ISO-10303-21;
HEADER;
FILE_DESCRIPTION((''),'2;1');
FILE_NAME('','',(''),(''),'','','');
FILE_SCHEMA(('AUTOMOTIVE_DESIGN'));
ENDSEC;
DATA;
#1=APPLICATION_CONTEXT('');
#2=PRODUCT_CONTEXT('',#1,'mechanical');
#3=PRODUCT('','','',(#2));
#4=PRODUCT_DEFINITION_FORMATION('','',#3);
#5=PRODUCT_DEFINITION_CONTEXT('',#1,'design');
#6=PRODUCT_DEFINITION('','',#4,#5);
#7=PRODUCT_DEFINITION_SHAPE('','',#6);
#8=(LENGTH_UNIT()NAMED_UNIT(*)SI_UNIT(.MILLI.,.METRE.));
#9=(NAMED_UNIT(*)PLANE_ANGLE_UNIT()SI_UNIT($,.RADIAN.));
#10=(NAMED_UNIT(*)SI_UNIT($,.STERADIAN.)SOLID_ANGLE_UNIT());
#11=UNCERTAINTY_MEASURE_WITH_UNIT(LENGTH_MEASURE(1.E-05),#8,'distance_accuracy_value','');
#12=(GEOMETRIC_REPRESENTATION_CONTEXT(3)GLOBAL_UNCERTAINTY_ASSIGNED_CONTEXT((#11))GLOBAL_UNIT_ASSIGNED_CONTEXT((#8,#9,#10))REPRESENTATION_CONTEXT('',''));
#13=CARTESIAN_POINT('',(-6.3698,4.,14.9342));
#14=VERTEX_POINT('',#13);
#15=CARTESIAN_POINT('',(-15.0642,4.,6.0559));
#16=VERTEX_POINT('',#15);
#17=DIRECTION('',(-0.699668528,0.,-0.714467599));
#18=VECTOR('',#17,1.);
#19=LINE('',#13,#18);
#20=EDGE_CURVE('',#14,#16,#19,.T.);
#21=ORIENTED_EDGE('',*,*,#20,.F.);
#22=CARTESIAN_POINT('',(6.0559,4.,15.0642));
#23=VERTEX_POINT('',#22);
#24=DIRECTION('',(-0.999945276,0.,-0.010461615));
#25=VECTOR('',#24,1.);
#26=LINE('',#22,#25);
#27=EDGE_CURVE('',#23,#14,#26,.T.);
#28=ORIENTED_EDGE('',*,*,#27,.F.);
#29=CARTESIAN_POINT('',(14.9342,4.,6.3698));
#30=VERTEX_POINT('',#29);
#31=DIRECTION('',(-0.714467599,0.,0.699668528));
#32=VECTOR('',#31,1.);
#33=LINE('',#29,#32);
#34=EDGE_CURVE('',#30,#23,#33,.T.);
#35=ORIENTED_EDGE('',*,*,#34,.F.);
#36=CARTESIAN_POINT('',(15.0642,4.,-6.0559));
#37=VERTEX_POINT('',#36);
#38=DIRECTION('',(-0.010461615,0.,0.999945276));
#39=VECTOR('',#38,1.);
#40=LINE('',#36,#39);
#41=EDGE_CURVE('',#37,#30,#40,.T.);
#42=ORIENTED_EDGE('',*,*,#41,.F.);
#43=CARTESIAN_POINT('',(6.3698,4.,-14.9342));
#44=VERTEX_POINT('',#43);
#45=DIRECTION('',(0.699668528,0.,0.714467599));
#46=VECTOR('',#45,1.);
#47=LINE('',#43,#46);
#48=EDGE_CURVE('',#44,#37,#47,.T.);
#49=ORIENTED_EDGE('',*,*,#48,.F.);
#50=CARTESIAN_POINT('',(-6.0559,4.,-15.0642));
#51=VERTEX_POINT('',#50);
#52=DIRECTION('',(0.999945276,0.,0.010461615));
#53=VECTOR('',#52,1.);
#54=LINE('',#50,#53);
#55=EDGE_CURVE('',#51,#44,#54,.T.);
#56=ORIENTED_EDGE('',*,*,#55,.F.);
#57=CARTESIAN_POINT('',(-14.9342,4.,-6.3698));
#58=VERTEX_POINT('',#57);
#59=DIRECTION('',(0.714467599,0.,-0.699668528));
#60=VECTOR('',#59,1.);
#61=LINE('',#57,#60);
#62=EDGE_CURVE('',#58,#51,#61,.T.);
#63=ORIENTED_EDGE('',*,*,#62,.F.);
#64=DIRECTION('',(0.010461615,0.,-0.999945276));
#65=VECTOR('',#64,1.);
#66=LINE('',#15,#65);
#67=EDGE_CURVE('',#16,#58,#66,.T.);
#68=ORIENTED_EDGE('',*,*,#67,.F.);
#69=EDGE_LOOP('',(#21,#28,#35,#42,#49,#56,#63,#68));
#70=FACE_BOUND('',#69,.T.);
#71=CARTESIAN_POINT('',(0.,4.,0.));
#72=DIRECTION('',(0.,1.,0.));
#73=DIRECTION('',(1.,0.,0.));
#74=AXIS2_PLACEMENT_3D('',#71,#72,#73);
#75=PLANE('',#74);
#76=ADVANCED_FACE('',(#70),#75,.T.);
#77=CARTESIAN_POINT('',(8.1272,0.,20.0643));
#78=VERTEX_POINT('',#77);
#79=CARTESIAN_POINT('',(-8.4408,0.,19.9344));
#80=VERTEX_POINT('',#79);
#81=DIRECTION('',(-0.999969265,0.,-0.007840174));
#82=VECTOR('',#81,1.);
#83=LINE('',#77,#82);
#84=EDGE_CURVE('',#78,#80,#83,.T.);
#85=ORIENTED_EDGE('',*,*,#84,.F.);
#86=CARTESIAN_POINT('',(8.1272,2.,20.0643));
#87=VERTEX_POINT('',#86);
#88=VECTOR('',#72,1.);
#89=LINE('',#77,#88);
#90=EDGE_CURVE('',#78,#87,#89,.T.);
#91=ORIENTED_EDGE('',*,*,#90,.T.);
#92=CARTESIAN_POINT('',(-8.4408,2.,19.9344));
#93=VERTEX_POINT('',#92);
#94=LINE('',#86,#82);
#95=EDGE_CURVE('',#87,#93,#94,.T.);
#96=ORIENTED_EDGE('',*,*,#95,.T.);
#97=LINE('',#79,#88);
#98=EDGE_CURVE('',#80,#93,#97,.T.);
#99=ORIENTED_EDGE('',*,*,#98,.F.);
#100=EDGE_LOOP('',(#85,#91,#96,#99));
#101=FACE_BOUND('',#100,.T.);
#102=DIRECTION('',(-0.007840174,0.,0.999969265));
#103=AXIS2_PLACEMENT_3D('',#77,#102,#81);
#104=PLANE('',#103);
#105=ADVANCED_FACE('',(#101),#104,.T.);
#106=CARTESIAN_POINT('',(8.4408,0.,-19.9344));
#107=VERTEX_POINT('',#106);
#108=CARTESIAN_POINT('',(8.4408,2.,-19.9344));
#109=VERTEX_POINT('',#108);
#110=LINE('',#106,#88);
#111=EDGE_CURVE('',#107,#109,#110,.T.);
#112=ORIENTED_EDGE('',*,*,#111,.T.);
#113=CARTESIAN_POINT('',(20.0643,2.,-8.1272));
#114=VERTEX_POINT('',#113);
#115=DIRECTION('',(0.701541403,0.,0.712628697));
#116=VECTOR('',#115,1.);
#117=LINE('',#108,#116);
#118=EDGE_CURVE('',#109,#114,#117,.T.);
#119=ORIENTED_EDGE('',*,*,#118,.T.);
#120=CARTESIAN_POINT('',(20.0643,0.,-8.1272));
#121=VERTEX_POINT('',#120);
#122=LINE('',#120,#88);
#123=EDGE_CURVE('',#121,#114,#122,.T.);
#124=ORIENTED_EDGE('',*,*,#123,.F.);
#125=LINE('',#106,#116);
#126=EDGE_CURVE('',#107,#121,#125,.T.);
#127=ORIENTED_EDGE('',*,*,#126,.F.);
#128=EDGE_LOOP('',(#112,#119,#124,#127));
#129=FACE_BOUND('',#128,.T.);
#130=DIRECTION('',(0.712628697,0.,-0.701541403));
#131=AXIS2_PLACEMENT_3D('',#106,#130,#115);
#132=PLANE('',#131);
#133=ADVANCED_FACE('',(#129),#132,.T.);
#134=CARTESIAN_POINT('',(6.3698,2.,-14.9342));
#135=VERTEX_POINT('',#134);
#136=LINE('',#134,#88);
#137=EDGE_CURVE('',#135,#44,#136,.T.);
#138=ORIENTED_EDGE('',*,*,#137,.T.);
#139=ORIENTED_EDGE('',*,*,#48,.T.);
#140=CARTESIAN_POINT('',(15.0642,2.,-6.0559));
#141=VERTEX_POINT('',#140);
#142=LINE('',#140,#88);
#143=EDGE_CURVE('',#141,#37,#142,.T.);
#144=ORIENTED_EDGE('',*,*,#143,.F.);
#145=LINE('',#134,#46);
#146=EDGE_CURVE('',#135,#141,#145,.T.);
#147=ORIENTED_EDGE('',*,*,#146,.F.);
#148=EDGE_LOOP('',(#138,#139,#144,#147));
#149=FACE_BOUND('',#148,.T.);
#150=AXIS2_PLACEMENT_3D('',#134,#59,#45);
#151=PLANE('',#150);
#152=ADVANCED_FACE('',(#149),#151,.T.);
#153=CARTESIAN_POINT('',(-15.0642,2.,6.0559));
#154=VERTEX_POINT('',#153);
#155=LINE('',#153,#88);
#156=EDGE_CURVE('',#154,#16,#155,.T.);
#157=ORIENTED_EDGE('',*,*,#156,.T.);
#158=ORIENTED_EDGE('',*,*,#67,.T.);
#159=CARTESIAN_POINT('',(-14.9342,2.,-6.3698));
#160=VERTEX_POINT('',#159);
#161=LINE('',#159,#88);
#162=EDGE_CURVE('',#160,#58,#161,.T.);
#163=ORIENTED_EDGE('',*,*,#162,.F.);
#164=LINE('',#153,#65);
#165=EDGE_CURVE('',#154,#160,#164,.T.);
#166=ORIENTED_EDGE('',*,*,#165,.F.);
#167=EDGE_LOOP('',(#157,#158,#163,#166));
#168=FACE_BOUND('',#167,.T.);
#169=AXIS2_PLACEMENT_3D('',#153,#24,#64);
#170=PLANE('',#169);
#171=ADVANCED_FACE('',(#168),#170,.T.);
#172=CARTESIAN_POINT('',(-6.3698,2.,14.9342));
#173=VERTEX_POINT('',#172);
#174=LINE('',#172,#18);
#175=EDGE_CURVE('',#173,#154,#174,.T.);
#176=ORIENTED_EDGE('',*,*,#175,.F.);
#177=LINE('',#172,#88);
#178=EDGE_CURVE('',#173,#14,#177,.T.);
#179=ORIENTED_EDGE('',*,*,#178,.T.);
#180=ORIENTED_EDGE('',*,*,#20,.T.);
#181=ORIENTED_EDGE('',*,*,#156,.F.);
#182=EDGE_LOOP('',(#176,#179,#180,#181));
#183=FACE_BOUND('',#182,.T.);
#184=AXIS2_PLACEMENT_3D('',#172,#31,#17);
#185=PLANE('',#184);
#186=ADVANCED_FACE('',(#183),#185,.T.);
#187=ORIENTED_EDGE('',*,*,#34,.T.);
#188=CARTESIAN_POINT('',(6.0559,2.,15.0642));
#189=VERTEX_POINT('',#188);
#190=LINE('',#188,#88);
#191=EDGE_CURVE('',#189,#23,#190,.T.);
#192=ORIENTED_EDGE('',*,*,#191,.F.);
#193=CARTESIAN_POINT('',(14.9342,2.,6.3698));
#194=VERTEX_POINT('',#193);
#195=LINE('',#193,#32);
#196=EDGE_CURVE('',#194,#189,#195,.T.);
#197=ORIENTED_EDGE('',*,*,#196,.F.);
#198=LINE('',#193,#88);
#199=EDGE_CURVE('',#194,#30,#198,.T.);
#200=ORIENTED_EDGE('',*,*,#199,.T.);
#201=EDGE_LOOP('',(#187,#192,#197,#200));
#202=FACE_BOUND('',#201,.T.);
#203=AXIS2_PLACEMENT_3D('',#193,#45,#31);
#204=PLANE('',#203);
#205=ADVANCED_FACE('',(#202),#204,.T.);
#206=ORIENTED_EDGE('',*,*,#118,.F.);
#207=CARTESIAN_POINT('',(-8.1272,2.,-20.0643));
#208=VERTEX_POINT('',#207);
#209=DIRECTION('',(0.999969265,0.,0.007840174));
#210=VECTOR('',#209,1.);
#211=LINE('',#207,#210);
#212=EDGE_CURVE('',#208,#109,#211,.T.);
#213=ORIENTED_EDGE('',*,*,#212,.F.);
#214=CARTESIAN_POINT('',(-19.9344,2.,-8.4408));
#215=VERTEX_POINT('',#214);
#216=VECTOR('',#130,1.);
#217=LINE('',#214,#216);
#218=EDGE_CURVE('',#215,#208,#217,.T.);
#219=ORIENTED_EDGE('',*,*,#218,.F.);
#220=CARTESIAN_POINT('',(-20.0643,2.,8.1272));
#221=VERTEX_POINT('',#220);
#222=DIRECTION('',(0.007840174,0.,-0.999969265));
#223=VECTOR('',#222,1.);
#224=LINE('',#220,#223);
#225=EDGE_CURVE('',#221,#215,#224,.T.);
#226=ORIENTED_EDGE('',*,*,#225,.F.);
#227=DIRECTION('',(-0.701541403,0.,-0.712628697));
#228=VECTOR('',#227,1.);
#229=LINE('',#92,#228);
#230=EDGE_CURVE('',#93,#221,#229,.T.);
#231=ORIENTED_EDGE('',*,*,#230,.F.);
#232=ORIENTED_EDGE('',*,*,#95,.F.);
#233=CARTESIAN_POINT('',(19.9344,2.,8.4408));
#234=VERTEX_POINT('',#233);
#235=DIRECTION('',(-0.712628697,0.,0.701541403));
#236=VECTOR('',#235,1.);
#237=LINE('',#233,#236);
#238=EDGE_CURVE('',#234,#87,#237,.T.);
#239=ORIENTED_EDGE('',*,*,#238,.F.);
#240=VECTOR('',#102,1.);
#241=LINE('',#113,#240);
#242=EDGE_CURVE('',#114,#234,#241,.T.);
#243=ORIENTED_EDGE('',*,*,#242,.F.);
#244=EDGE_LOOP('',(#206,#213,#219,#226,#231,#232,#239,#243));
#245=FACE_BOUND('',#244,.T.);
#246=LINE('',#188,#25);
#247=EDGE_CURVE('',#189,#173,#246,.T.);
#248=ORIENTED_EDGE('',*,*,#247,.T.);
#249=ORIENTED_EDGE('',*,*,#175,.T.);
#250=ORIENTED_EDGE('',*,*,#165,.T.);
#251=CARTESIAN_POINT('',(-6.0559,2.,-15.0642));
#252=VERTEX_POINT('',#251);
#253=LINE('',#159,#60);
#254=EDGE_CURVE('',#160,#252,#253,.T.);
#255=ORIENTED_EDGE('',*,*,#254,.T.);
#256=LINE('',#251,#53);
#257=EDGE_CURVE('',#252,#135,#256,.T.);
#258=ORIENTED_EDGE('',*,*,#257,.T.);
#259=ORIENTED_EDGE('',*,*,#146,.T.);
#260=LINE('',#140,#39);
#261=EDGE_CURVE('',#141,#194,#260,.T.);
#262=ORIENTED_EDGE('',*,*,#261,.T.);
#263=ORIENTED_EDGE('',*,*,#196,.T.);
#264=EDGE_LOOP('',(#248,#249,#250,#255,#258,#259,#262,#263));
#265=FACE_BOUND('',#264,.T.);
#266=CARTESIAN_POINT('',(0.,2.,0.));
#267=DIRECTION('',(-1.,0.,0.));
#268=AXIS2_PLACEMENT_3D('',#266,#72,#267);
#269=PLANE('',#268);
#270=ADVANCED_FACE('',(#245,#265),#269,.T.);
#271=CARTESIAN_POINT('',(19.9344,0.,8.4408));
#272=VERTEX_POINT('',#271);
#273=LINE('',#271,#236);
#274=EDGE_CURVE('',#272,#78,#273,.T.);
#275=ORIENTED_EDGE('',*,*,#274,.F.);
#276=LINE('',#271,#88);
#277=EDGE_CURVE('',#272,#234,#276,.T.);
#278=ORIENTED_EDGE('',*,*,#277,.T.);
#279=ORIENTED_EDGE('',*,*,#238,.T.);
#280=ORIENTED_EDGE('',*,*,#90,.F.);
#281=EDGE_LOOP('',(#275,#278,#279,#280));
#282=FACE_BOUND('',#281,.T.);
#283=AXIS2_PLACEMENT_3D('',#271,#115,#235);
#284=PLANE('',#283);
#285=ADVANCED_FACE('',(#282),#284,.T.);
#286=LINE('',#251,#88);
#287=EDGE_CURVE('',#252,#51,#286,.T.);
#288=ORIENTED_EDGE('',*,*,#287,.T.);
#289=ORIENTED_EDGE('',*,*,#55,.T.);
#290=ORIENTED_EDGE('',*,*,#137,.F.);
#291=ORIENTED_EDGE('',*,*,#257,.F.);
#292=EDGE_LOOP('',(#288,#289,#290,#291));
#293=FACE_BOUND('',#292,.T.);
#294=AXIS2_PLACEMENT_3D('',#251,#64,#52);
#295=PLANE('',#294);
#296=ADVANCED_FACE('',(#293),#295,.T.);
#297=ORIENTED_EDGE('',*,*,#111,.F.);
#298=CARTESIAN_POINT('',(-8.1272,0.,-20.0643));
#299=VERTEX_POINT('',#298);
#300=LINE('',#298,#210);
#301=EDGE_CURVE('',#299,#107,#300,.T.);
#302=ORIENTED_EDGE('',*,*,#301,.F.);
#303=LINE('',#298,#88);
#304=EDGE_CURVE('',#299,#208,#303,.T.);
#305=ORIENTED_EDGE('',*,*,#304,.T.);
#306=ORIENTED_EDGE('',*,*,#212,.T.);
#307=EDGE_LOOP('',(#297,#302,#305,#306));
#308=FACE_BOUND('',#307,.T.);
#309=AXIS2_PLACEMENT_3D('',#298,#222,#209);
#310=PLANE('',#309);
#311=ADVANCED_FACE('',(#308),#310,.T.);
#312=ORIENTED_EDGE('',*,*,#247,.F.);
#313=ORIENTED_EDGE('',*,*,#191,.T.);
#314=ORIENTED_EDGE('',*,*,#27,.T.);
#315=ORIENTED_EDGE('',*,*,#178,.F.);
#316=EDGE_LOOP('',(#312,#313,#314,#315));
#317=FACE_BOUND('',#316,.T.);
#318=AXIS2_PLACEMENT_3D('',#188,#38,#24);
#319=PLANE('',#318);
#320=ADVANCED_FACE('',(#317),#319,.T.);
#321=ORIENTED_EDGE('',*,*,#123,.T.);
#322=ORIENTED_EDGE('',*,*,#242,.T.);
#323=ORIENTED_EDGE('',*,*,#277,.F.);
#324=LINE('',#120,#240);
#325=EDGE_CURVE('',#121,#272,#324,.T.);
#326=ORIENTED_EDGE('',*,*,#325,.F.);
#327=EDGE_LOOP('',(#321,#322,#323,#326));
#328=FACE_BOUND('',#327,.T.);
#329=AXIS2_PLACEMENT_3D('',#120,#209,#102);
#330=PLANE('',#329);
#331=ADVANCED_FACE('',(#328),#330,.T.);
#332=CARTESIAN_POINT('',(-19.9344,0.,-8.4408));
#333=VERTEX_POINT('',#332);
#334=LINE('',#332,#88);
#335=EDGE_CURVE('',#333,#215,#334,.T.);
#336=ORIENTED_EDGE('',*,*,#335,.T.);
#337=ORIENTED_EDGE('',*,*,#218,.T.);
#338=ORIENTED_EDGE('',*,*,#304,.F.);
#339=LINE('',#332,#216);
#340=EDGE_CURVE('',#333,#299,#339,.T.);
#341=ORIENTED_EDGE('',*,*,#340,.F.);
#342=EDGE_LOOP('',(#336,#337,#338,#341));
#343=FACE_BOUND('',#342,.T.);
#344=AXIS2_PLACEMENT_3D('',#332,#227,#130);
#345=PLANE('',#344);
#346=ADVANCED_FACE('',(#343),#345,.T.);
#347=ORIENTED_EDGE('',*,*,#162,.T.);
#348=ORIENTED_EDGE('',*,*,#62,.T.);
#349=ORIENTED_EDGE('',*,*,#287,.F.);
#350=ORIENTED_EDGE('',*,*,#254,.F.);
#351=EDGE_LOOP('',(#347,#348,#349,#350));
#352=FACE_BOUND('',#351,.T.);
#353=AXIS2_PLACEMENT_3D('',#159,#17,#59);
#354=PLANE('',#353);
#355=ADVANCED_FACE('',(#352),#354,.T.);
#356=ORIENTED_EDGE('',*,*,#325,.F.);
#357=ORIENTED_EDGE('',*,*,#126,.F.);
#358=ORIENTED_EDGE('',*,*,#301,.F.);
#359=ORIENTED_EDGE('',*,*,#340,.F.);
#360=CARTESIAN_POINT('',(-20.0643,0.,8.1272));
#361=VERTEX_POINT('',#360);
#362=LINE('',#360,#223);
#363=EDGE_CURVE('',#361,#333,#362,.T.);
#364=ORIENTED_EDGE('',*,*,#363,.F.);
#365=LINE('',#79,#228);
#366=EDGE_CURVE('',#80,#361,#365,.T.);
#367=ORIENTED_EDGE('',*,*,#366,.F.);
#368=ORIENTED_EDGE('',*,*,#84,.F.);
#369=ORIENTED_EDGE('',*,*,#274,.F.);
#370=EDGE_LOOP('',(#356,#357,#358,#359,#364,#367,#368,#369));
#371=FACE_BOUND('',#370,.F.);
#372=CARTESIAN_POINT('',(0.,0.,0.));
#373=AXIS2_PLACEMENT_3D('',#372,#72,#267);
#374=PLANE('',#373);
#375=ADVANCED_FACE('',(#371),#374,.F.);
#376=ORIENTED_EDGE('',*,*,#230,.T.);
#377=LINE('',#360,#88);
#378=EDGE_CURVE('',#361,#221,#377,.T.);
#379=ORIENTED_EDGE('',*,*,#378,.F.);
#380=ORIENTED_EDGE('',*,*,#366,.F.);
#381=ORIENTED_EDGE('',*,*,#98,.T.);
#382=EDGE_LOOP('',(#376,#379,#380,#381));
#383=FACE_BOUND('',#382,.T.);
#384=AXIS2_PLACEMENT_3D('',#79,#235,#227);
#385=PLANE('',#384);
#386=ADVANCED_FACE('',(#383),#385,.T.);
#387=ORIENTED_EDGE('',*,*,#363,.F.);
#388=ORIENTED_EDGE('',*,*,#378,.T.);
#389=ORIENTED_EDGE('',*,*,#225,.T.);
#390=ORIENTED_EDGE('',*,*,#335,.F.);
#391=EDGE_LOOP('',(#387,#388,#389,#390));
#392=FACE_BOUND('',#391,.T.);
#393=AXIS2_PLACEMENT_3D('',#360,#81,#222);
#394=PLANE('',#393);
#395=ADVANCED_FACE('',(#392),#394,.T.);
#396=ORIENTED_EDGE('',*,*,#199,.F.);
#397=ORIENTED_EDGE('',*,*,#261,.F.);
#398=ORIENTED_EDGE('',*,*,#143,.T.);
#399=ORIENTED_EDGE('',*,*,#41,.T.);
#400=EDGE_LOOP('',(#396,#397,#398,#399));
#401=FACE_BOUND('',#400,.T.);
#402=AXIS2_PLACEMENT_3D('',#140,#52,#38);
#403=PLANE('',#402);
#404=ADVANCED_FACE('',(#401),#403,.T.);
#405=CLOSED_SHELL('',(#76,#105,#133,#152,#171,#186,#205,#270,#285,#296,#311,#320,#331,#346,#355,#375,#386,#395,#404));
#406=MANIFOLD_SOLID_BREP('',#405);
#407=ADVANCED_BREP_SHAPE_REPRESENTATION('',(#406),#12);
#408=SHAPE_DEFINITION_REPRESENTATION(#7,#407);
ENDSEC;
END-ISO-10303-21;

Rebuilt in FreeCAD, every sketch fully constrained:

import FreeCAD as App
import Part
import Sketcher
Q = App.Units.Quantity

doc = App.newDocument("Part")
body = doc.addObject("PartDesign::Body", "Body")

sketch1 = doc.addObject("Sketcher::SketchObject", "Sketch")
body.addObject(sketch1)
sketch1.AttachmentSupport = (doc.XZ_Plane, [""])
sketch1.MapMode = "FlatFace"
sketch1.addGeometry(Part.LineSegment(App.Vector(-20, -8, 0), App.Vector(-20, 8, 0)), False)
sketch1.addGeometry(Part.LineSegment(App.Vector(-20, 8, 0), App.Vector(-8, 20, 0)), False)
sketch1.addGeometry(Part.LineSegment(App.Vector(-8, 20, 0), App.Vector(8, 20, 0)), False)
sketch1.addGeometry(Part.LineSegment(App.Vector(8, 20, 0), App.Vector(20, 8, 0)), False)
sketch1.addGeometry(Part.LineSegment(App.Vector(20, 8, 0), App.Vector(20, -8, 0)), False)
sketch1.addGeometry(Part.LineSegment(App.Vector(20, -8, 0), App.Vector(8, -20, 0)), False)
sketch1.addGeometry(Part.LineSegment(App.Vector(8, -20, 0), App.Vector(-8, -20, 0)), False)
sketch1.addGeometry(Part.LineSegment(App.Vector(-8, -20, 0), App.Vector(-20, -8, 0)), False)
sketch1.addConstraint(Sketcher.Constraint("Coincident", 0, 2, 1, 1))
sketch1.addConstraint(Sketcher.Constraint("Coincident", 1, 2, 2, 1))
sketch1.addConstraint(Sketcher.Constraint("Coincident", 2, 2, 3, 1))
sketch1.addConstraint(Sketcher.Constraint("Coincident", 3, 2, 4, 1))
sketch1.addConstraint(Sketcher.Constraint("Coincident", 4, 2, 5, 1))
sketch1.addConstraint(Sketcher.Constraint("Coincident", 5, 2, 6, 1))
sketch1.addConstraint(Sketcher.Constraint("Coincident", 6, 2, 7, 1))
sketch1.addConstraint(Sketcher.Constraint("Coincident", 7, 2, 0, 1))
sketch1.addConstraint(Sketcher.Constraint("Symmetric", 0, 2, 4, 2, -1, 1))
sketch1.addConstraint(Sketcher.Constraint("Symmetric", 1, 2, 5, 2, -1, 1))
sketch1.addConstraint(Sketcher.Constraint("Symmetric", 2, 2, 6, 2, -1, 1))
sketch1.addConstraint(Sketcher.Constraint("Symmetric", 3, 2, 7, 2, -1, 1))
sketch1.addConstraint(Sketcher.Constraint("Perpendicular", 0, 2))
sketch1.addConstraint(Sketcher.Constraint("Perpendicular", 1, 3))
sketch1.addConstraint(Sketcher.Constraint("Equal", 0, 1))
sketch1.addConstraint(Sketcher.Constraint("Equal", 1, 2))
sketch1.addConstraint(Sketcher.Constraint("Equal", 2, 3))
sketch1.addConstraint(Sketcher.Constraint("DistanceX", 1, 2, 2, 2, Q("16.568 mm")))
sketch1.addConstraint(Sketcher.Constraint("Distance", 0, Q("16.5685 mm")))
sketch1.addConstraint(Sketcher.Constraint("Angle", 1, Q("45.4492 deg")))
pad1 = doc.addObject("PartDesign::Pad", "Pad")
body.addObject(pad1)
pad1.Profile = sketch1
pad1.Length = 2
pad1.Reversed = True

sketch2 = doc.addObject("Sketcher::SketchObject", "Sketch001")
body.addObject(sketch2)
sketch2.AttachmentSupport = (doc.XZ_Plane, [""])
sketch2.MapMode = "FlatFace"
sketch2.AttachmentOffset = App.Placement(App.Vector(0, 0, -2), App.Rotation())
sketch2.addGeometry(Part.LineSegment(App.Vector(15, 6, 0), App.Vector(15, -6, 0)), False)
sketch2.addGeometry(Part.LineSegment(App.Vector(15, -6, 0), App.Vector(6, -15, 0)), False)
sketch2.addGeometry(Part.LineSegment(App.Vector(6, -15, 0), App.Vector(-6, -15, 0)), False)
sketch2.addGeometry(Part.LineSegment(App.Vector(-6, -15, 0), App.Vector(-15, -6, 0)), False)
sketch2.addGeometry(Part.LineSegment(App.Vector(-15, -6, 0), App.Vector(-15, 6, 0)), False)
sketch2.addGeometry(Part.LineSegment(App.Vector(-15, 6, 0), App.Vector(-6, 15, 0)), False)
sketch2.addGeometry(Part.LineSegment(App.Vector(-6, 15, 0), App.Vector(6, 15, 0)), False)
sketch2.addGeometry(Part.LineSegment(App.Vector(6, 15, 0), App.Vector(15, 6, 0)), False)
sketch2.addConstraint(Sketcher.Constraint("Coincident", 0, 2, 1, 1))
sketch2.addConstraint(Sketcher.Constraint("Coincident", 1, 2, 2, 1))
sketch2.addConstraint(Sketcher.Constraint("Coincident", 2, 2, 3, 1))
sketch2.addConstraint(Sketcher.Constraint("Coincident", 3, 2, 4, 1))
sketch2.addConstraint(Sketcher.Constraint("Coincident", 4, 2, 5, 1))
sketch2.addConstraint(Sketcher.Constraint("Coincident", 5, 2, 6, 1))
sketch2.addConstraint(Sketcher.Constraint("Coincident", 6, 2, 7, 1))
sketch2.addConstraint(Sketcher.Constraint("Coincident", 7, 2, 0, 1))
sketch2.addConstraint(Sketcher.Constraint("Symmetric", 0, 2, 4, 2, -1, 1))
sketch2.addConstraint(Sketcher.Constraint("Symmetric", 1, 2, 5, 2, -1, 1))
sketch2.addConstraint(Sketcher.Constraint("Symmetric", 2, 2, 6, 2, -1, 1))
sketch2.addConstraint(Sketcher.Constraint("Symmetric", 3, 2, 7, 2, -1, 1))
sketch2.addConstraint(Sketcher.Constraint("Perpendicular", 0, 2))
sketch2.addConstraint(Sketcher.Constraint("Perpendicular", 1, 3))
sketch2.addConstraint(Sketcher.Constraint("Equal", 0, 1))
sketch2.addConstraint(Sketcher.Constraint("Equal", 1, 2))
sketch2.addConstraint(Sketcher.Constraint("Equal", 2, 3))
sketch2.addConstraint(Sketcher.Constraint("Angle", 0, Q("-89.4006 deg")))
sketch2.addConstraint(Sketcher.Constraint("Angle", 1, Q("-134.4004 deg")))
sketch2.addConstraint(Sketcher.Constraint("DistanceX", 2, 2, 1, 2, Q("12.4257 mm")))
pad2 = doc.addObject("PartDesign::Pad", "Pad001")
body.addObject(pad2)
pad2.Profile = sketch2
pad2.Length = 2
pad2.Reversed = True

doc.recompute()
